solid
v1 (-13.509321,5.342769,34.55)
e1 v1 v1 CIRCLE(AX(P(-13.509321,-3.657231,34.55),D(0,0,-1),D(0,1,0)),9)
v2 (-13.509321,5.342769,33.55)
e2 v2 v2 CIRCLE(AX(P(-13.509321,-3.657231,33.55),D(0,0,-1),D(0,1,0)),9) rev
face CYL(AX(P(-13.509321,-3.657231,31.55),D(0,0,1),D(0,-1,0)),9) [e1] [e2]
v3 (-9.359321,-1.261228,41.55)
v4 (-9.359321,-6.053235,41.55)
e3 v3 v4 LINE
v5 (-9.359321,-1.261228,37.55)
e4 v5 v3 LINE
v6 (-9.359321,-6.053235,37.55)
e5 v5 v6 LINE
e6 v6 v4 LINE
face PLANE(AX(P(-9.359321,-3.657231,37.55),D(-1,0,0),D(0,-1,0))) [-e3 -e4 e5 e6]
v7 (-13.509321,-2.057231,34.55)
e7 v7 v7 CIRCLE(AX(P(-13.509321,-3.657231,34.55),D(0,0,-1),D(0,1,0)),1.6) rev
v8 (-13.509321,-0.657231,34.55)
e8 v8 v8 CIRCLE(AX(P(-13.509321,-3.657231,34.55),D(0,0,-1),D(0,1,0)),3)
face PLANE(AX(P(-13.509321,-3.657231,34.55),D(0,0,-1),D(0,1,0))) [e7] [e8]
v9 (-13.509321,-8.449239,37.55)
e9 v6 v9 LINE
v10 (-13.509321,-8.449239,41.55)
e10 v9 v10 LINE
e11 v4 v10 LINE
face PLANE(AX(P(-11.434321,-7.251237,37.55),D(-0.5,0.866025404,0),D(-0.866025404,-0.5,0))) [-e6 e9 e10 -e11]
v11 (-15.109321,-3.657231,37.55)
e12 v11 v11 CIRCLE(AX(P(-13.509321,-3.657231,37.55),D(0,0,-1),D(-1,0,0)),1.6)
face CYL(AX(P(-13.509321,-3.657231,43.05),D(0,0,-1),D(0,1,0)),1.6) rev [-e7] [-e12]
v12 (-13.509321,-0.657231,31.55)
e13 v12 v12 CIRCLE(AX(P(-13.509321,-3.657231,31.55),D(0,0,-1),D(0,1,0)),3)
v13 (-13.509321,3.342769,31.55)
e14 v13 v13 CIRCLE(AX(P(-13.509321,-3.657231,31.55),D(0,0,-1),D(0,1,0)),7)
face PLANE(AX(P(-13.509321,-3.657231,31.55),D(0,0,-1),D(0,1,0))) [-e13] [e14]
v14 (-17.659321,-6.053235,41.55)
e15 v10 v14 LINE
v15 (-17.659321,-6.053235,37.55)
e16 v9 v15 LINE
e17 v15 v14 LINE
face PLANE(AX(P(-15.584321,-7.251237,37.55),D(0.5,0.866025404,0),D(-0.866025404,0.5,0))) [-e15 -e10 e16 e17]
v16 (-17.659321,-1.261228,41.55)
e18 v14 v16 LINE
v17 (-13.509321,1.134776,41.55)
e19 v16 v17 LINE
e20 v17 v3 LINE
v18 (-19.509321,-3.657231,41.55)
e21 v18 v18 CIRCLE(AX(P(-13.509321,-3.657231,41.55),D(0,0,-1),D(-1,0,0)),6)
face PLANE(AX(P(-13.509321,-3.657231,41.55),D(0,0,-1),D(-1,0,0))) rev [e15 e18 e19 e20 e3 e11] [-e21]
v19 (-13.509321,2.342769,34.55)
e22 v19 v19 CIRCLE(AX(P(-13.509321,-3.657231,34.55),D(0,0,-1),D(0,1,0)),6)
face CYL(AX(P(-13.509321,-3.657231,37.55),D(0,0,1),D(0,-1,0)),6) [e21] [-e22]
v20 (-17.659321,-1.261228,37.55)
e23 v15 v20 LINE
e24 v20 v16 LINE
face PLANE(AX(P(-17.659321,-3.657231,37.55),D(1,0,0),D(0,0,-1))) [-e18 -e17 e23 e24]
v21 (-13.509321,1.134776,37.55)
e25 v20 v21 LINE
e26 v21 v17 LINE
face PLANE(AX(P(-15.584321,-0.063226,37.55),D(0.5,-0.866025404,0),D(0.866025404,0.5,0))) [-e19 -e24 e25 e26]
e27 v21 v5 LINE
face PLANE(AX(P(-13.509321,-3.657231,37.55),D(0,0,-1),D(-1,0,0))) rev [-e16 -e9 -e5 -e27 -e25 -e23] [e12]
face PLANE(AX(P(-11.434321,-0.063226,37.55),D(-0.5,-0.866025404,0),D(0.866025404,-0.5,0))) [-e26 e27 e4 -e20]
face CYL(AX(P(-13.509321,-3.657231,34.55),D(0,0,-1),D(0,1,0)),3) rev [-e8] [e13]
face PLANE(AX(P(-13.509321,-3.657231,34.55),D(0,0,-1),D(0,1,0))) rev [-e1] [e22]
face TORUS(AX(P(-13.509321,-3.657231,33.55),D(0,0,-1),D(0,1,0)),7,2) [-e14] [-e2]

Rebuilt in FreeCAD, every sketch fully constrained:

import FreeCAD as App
import Part
import Sketcher

V = App.Vector
Q = App.Units.Quantity


def edges_at(feature, points):
    """Names of the edges that pass closest to the given points."""
    edges = feature.Shape.Edges
    near = lambda p: min(range(len(edges)), key=lambda i: edges[i].distToShape(Part.Vertex(*p))[0])
    return sorted({f"Edge{near(p) + 1}" for p in points})


def add_polygon(sketch, points):
    """Adds a closed chain of lines whose ends are joined by coincident constraints."""
    first, n = sketch.GeometryCount, len(points)
    for a, b in zip(points, points[1:] + points[:1]):
        sketch.addGeometry(Part.LineSegment(App.Vector(*a, 0), App.Vector(*b, 0)), False)
    for i in range(n):
        sketch.addConstraint(Sketcher.Constraint("Coincident", first + i, 2, first + (i + 1) % n, 1))

doc = App.newDocument("Part")
body = doc.addObject("PartDesign::Body", "Body")

# Sketch on XY plane
sketch1 = body.newObject("Sketcher::SketchObject", "Sketch")
sketch1.AttachmentSupport = (doc.getObject("XY_Plane"), [""])
sketch1.MapMode = "FlatFace"
sketch1.AttachmentOffset = App.Placement(V(0, 0, 41.55), App.Rotation())
sketch1.addGeometry(Part.Circle(V(-13.5, -3.7, 0), V(0, 0, 1), 6), False)  # 0
add_polygon(sketch1, [(-9.4, -6.1), (-9.4, -1.3), (-13.5, 1.1), (-17.7, -1.3), (-17.7, -6.1), (-13.5, -8.4)])  # lines 1-6
sketch1.addConstraint(Sketcher.Constraint("Vertical", 1))
sketch1.addConstraint(Sketcher.Constraint("Vertical", 4))
sketch1.addConstraint(Sketcher.Constraint("Parallel", 2, 5))
sketch1.addConstraint(Sketcher.Constraint("Parallel", 3, 6))
sketch1.addConstraint(Sketcher.Constraint("Horizontal", 1, 2, 3, 2))
sketch1.addConstraint(Sketcher.Constraint("Horizontal", 4, 2, 6, 2))
sketch1.addConstraint(Sketcher.Constraint("Vertical", 0, 3, 2, 2))
sketch1.addConstraint(Sketcher.Constraint("Vertical", 2, 2, 5, 2))
sketch1.addConstraint(Sketcher.Constraint("Diameter", 0, 12.0))
sketch1.addConstraint(Sketcher.Constraint("Angle", 2, Q("150 deg")))
sketch1.addConstraint(Sketcher.Constraint("DistanceX", 3, 2, 1, 2, 8.3))
sketch1.addConstraint(Sketcher.Constraint("DistanceY", 1, 1, 1, 2, 4.792007))
sketch1.addConstraint(Sketcher.Constraint("DistanceX", 0, 3, -1, 1, 13.509321))
sketch1.addConstraint(Sketcher.Constraint("DistanceY", 0, 3, -1, 1, 3.657231))
sketch1.addConstraint(Sketcher.Constraint("DistanceY", 5, 2, -1, 1, 8.449239))
pad1 = body.newObject("PartDesign::Pad", "Pad")
pad1.Profile = sketch1
pad1.Length = 4
pad1.Reversed = True

# Sketch on XY plane
sketch2 = body.newObject("Sketcher::SketchObject", "Sketch001")
sketch2.AttachmentSupport = (doc.getObject("XY_Plane"), [""])
sketch2.MapMode = "FlatFace"
sketch2.AttachmentOffset = App.Placement(V(0, 0, 37.55), App.Rotation())
sketch2.addGeometry(Part.Circle(V(-14, -4, 0), V(0, 0, 1), 6), False)
sketch2.addConstraint(Sketcher.Constraint("Diameter", 0, 12.0))
sketch2.addConstraint(Sketcher.Constraint("DistanceX", 0, 3, -1, 1, 13.509321))
sketch2.addConstraint(Sketcher.Constraint("DistanceY", 0, 3, -1, 1, 3.657231))
pad2 = body.newObject("PartDesign::Pad", "Pad001")
pad2.Profile = sketch2
pad2.Length = 3
pad2.Reversed = True

# Sketch on XY plane
sketch3 = body.newObject("Sketcher::SketchObject", "Sketch002")
sketch3.AttachmentSupport = (doc.getObject("XY_Plane"), [""])
sketch3.MapMode = "FlatFace"
sketch3.AttachmentOffset = App.Placement(V(0, 0, 34.55), App.Rotation())
sketch3.addGeometry(Part.Circle(V(-14, -4, 0), V(0, 0, 1), 9), False)
sketch3.addConstraint(Sketcher.Constraint("Diameter", 0, 18.0))
sketch3.addConstraint(Sketcher.Constraint("DistanceX", 0, 3, -1, 1, 13.509321))
sketch3.addConstraint(Sketcher.Constraint("DistanceY", 0, 3, -1, 1, 3.657231))
pad3 = body.newObject("PartDesign::Pad", "Pad002")
pad3.Profile = sketch3
pad3.Length = 3
pad3.Reversed = True

# Sketch on XY plane
sketch4 = body.newObject("Sketcher::SketchObject", "Sketch003")
sketch4.AttachmentSupport = (doc.getObject("XY_Plane"), [""])
sketch4.MapMode = "FlatFace"
sketch4.AttachmentOffset = App.Placement(V(0, 0, 31.55), App.Rotation())
sketch4.addGeometry(Part.Circle(V(-13.5, -3.7, 0), V(0, 0, 1), 1.6), False)
sketch4.addConstraint(Sketcher.Constraint("Diameter", 0, 3.2))
sketch4.addConstraint(Sketcher.Constraint("DistanceX", 0, 3, -1, 1, 13.509321))
sketch4.addConstraint(Sketcher.Constraint("DistanceY", 0, 3, -1, 1, 3.657231))
pocket1 = body.newObject("PartDesign::Pocket", "Pocket")
pocket1.Profile = sketch4
pocket1.Length = 11.5
pocket1.Reversed = True

# Sketch on XY plane
sketch5 = body.newObject("Sketcher::SketchObject", "Sketch004")
sketch5.AttachmentSupport = (doc.getObject("XY_Plane"), [""])
sketch5.MapMode = "FlatFace"
sketch5.AttachmentOffset = App.Placement(V(0, 0, 31.55), App.Rotation())
sketch5.addGeometry(Part.Circle(V(-13.5, -3.7, 0), V(0, 0, 1), 3), False)
sketch5.addConstraint(Sketcher.Constraint("Diameter", 0, 6.0))
sketch5.addConstraint(Sketcher.Constraint("DistanceX", 0, 3, -1, 1, 13.509321))
sketch5.addConstraint(Sketcher.Constraint("DistanceY", 0, 3, -1, 1, 3.657231))
pocket2 = body.newObject("PartDesign::Pocket", "Pocket001")
pocket2.Profile = sketch5
pocket2.Length = 3
pocket2.Reversed = True
doc.recompute()

fillet = body.newObject("PartDesign::Fillet", "Fillet")
fillet.Base = (pocket2, edges_at(pocket2, [(-4.509, -3.657, 31.55)]))
fillet.Radius = 2

doc.recompute()
